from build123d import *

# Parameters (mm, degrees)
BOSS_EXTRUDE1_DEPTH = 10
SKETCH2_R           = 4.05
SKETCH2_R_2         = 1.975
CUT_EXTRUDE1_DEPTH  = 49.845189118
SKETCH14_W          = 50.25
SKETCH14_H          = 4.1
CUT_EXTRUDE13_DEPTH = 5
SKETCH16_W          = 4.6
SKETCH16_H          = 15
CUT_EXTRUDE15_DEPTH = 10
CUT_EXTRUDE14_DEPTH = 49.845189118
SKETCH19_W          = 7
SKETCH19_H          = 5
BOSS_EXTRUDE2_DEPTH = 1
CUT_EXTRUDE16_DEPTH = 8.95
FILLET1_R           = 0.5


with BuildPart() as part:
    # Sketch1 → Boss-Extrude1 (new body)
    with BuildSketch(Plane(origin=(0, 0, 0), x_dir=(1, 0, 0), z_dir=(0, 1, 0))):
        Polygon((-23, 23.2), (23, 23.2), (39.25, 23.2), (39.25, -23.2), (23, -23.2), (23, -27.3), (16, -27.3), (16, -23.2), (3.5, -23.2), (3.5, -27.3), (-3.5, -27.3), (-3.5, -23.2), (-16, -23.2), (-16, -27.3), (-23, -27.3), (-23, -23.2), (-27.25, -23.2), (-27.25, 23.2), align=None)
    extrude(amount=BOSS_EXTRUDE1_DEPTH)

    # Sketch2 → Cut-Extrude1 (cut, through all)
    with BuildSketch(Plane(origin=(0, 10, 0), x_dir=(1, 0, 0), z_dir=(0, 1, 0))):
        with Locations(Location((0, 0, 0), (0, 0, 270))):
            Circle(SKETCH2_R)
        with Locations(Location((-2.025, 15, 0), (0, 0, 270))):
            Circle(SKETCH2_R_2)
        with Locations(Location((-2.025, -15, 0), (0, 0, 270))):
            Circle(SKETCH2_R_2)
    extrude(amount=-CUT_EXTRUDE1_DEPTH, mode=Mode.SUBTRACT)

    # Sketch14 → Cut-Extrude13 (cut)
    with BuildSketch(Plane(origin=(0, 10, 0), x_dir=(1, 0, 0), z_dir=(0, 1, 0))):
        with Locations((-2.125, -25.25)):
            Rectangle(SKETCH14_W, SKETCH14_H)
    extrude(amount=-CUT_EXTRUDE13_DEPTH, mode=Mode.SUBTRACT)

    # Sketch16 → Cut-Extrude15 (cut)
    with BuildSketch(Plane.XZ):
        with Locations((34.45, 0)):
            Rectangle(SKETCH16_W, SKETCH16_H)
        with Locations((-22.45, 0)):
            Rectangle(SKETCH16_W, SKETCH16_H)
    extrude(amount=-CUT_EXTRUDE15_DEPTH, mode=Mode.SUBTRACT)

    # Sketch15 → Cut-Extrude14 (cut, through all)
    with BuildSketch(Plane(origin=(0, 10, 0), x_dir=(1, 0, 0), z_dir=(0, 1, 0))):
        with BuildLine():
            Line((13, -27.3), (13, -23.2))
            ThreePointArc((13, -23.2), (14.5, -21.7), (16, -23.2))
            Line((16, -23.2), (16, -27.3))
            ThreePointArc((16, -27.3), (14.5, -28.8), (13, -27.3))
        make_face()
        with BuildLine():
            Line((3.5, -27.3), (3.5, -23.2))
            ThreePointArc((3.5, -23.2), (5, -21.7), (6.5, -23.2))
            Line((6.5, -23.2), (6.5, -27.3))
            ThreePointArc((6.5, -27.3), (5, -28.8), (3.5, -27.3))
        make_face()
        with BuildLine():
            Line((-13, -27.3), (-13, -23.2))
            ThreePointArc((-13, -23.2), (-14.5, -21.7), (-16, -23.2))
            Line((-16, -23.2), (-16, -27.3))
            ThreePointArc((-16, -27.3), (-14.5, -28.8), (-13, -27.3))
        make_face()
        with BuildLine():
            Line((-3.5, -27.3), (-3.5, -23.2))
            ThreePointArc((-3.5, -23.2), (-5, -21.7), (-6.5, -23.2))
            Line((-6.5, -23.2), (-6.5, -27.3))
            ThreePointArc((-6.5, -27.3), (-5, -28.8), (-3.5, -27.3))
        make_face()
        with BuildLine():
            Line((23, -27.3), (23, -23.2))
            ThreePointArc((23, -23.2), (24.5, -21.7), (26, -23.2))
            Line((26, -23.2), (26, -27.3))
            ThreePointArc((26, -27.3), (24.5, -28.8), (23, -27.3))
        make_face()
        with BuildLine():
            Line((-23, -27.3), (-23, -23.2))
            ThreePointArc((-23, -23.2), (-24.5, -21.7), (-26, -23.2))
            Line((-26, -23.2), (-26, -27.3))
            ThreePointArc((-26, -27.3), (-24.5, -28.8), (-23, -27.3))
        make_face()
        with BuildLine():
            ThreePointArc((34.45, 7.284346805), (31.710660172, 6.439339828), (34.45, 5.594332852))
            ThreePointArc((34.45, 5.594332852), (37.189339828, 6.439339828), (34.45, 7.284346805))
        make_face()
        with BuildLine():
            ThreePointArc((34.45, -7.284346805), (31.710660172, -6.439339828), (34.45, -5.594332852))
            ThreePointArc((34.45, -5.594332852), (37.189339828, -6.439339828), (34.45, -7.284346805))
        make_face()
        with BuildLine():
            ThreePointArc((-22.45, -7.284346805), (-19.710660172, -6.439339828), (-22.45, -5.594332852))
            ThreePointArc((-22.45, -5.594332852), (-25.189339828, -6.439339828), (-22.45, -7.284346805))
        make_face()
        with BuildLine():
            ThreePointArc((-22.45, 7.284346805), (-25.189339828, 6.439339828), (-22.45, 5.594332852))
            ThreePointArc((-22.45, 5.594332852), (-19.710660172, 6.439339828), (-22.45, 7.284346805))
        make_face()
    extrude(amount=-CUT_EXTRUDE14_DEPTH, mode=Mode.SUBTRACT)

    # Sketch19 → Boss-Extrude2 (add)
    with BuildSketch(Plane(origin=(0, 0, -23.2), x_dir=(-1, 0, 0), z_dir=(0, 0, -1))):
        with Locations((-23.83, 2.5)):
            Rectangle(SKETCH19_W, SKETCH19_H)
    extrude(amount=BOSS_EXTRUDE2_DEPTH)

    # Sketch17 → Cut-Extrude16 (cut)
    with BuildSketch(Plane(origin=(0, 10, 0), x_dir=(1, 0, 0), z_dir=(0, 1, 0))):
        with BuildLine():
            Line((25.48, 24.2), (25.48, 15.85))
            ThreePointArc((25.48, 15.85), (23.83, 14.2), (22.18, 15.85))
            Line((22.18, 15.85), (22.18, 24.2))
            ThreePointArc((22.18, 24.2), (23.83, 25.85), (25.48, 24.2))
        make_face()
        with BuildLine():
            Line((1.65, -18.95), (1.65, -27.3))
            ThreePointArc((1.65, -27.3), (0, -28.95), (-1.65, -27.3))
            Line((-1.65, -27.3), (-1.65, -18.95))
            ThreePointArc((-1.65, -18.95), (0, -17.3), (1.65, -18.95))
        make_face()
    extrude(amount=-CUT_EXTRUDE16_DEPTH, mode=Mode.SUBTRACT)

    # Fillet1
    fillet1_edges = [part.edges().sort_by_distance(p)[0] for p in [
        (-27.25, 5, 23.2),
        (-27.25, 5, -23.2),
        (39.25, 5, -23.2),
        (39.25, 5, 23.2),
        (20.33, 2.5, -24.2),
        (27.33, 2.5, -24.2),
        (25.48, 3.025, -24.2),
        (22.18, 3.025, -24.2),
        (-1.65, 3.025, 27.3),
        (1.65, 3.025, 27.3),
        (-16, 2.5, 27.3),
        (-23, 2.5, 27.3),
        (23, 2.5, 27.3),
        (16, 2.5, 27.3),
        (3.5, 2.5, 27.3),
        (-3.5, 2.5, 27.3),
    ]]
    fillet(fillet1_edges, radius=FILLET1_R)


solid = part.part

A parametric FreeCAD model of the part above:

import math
import FreeCAD as App
import Part
import Sketcher
from FreeCAD import Vector


def edges_at(feature, points):
    """Names of the edges that pass closest to the given points."""
    edges = feature.Shape.Edges
    near = lambda p: min(range(len(edges)), key=lambda i: edges[i].distToShape(Part.Vertex(*p))[0])
    return sorted({f"Edge{near(p) + 1}" for p in points})


def add_polygon(sketch, points):
    """Adds a closed chain of lines whose ends are joined by coincident constraints."""
    first, n = sketch.GeometryCount, len(points)
    for a, b in zip(points, points[1:] + points[:1]):
        sketch.addGeometry(Part.LineSegment(App.Vector(*a, 0), App.Vector(*b, 0)), False)
    for i in range(n):
        sketch.addConstraint(Sketcher.Constraint("Coincident", first + i, 2, first + (i + 1) % n, 1))

doc = App.newDocument("Part")
body = doc.addObject("PartDesign::Body", "Body")

sketch1 = body.newObject("Sketcher::SketchObject", "Sketch")
sketch1.AttachmentSupport = (doc.getObject("XZ_Plane"), [""])
sketch1.MapMode = "FlatFace"
add_polygon(sketch1, [(39.2, -23.2), (-27.2, -23.2), (-27.2, 23.2), (-23, 23.2), (-23, 27.3), (-16, 27.3), (-16, 23.2), (-3.5, 23.2), (-3.5, 27.3), (3.5, 27.3), (3.5, 23.2), (16, 23.2), (16, 27.3), (23, 27.3), (23, 23.2), (39.2, 23.2)])
sketch1.addConstraint([
    Sketcher.Constraint("Horizontal", 0),
    Sketcher.Constraint("Vertical", 1),
    Sketcher.Constraint("Horizontal", 2),
    Sketcher.Constraint("Vertical", 3),
    Sketcher.Constraint("Horizontal", 4),
    Sketcher.Constraint("Vertical", 5),
    Sketcher.Constraint("Horizontal", 6),
    Sketcher.Constraint("Vertical", 7),
    Sketcher.Constraint("Horizontal", 8),
    Sketcher.Constraint("Vertical", 9),
    Sketcher.Constraint("Horizontal", 10),
    Sketcher.Constraint("Vertical", 11),
    Sketcher.Constraint("Horizontal", 12),
    Sketcher.Constraint("Vertical", 13),
    Sketcher.Constraint("Horizontal", 14),
    Sketcher.Constraint("Vertical", 15),
    Sketcher.Constraint("Symmetric", 6, 2, 9, 2, -2),
    Sketcher.Constraint("Symmetric", 4, 2, 11, 2, -2),
    Sketcher.Constraint("Symmetric", 2, 2, 13, 2, -2),
    Sketcher.Constraint("Horizontal", 2, 2, 5, 2),
    Sketcher.Constraint("Horizontal", 4, 2, 7, 2),
    Sketcher.Constraint("Equal", 4, 8),
    Sketcher.Constraint("DistanceX", 4, 1, 4, 2, 7.0),
    Sketcher.Constraint("DistanceX", 0, 2, 0, 1, 66.5),
    Sketcher.Constraint("DistanceX", 6, 1, 6, 2, 12.5),
    Sketcher.Constraint("DistanceY", 1, 1, 1, 2, 46.4),
    Sketcher.Constraint("DistanceY", 3, 1, 3, 2, 4.1),
    Sketcher.Constraint("DistanceX", 2, 1, 2, 2, 4.25),
    Sketcher.Constraint("DistanceY", 0, 2, -1, 1, 23.2),
])
pad1 = body.newObject("PartDesign::Pad", "Pad")
pad1.Profile = sketch1
pad1.Length = 10
pad1.Reversed = True

sketch2 = body.newObject("Sketcher::SketchObject", "Sketch001")
sketch2.AttachmentSupport = (doc.getObject("XZ_Plane"), [""])
sketch2.MapMode = "FlatFace"
sketch2.AttachmentOffset = App.Placement(Vector(0, 0, -10), App.Rotation())
sketch2.addGeometry([
    Part.Circle(Vector(0, 0, 0), Vector(0, 0, 1), 4),
    Part.Circle(Vector(-2, -15, 0), Vector(0, 0, 1), 2),
    Part.Circle(Vector(-2, 15, 0), Vector(0, 0, 1), 2),
], False)
sketch2.addConstraint([
    Sketcher.Constraint("Coincident", 0, 3, -1, 1),
    Sketcher.Constraint("Equal", 1, 2),
    Sketcher.Constraint("Symmetric", 1, 3, 2, 3, -1),
    Sketcher.Constraint("Diameter", 0, 8.1),
    Sketcher.Constraint("Diameter", 1, 3.95),
    Sketcher.Constraint("DistanceY", 1, 3, -1, 1, 15.0),
    Sketcher.Constraint("DistanceX", 1, 3, -1, 1, 2.025),
])
pocket1 = body.newObject("PartDesign::Pocket", "Pocket")
pocket1.Profile = sketch2
pocket1.Type = "ThroughAll"
pocket1.Reversed = True

sketch3 = body.newObject("Sketcher::SketchObject", "Sketch002")
sketch3.AttachmentSupport = (doc.getObject("XZ_Plane"), [""])
sketch3.MapMode = "FlatFace"
sketch3.AttachmentOffset = App.Placement(Vector(0, 0, -10), App.Rotation())
add_polygon(sketch3, [(-27.2, 23.2), (-27.2, 27.3), (23, 27.3), (23, 23.2)])
sketch3.addConstraint([
    Sketcher.Constraint("Vertical", 0),
    Sketcher.Constraint("Horizontal", 1),
    Sketcher.Constraint("Vertical", 2),
    Sketcher.Constraint("Horizontal", 3),
    Sketcher.Constraint("DistanceY", 0, 1, 0, 2, 4.1),
    Sketcher.Constraint("DistanceX", -1, 1, 1, 2, 23.0),
    Sketcher.Constraint("DistanceX", 1, 1, 1, 2, 50.25),
    Sketcher.Constraint("DistanceY", -1, 1, 0, 2, 27.3),
])
pocket2 = body.newObject("PartDesign::Pocket", "Pocket001")
pocket2.Profile = sketch3
pocket2.Length = 5
pocket2.Reversed = True

sketch4 = body.newObject("Sketcher::SketchObject", "Sketch003")
sketch4.AttachmentSupport = (doc.getObject("XZ_Plane"), [""])
sketch4.MapMode = "FlatFace"
add_polygon(sketch4, [(32.1, 7.5), (32.1, -7.5), (36.8, -7.5), (36.8, 7.5)])
add_polygon(sketch4, [(-24.8, 7.5), (-24.8, -7.5), (-20.1, -7.5), (-20.1, 7.5)])
sketch4.addConstraint([
    Sketcher.Constraint("Vertical", 0),
    Sketcher.Constraint("Horizontal", 1),
    Sketcher.Constraint("Vertical", 2),
    Sketcher.Constraint("Horizontal", 3),
    Sketcher.Constraint("Vertical", 4),
    Sketcher.Constraint("Horizontal", 5),
    Sketcher.Constraint("Vertical", 6),
    Sketcher.Constraint("Horizontal", 7),
    Sketcher.Constraint("Horizontal", 1, 2, 4, 2),
    Sketcher.Constraint("Horizontal", 3, 2, 6, 2),
    Sketcher.Constraint("Equal", 3, 5),
    Sketcher.Constraint("DistanceY", 0, 2, 0, 1, 15.0),
    Sketcher.Constraint("DistanceX", 1, 1, 1, 2, 4.6),
    Sketcher.Constraint("DistanceY", 0, 2, -1, 1, 7.5),
    Sketcher.Constraint("DistanceX", 4, 2, 0, 2, 56.9),
    Sketcher.Constraint("DistanceX", -1, 1, 0, 2, 32.15),
])
pocket3 = body.newObject("PartDesign::Pocket", "Pocket002")
pocket3.Profile = sketch4
pocket3.Length = 10

sketch5 = body.newObject("Sketcher::SketchObject", "Sketch004")
sketch5.AttachmentSupport = (doc.getObject("XZ_Plane"), [""])
sketch5.MapMode = "FlatFace"
sketch5.AttachmentOffset = App.Placement(Vector(0, 0, -10), App.Rotation())
sketch5.addGeometry([
    Part.LineSegment(Vector(13, 23.2, 0), Vector(13, 27.3, 0)),
    Part.ArcOfCircle(Part.Circle(Vector(14.5, 27.3, 0), Vector(0, 0, 1), 1.5), math.radians(0), math.radians(180)),
    Part.LineSegment(Vector(16, 27.3, 0), Vector(16, 23.2, 0)),
    Part.ArcOfCircle(Part.Circle(Vector(14.5, 23.2, 0), Vector(0, 0, 1), 1.5), math.radians(180), math.radians(360)),
    Part.LineSegment(Vector(3.5, 23.2, 0), Vector(3.5, 27.3, 0)),
    Part.ArcOfCircle(Part.Circle(Vector(5, 27.3, 0), Vector(0, 0, 1), 1.5), math.radians(0), math.radians(180)),
    Part.LineSegment(Vector(6.5, 27.3, 0), Vector(6.5, 23.2, 0)),
    Part.ArcOfCircle(Part.Circle(Vector(5, 23.2, 0), Vector(0, 0, 1), 1.5), math.radians(180), math.radians(360)),
    Part.LineSegment(Vector(-13, 27.3, 0), Vector(-13, 23.2, 0)),
    Part.ArcOfCircle(Part.Circle(Vector(-14.5, 23.2, 0), Vector(0, 0, 1), 1.5), math.radians(180), math.radians(360)),
    Part.LineSegment(Vector(-16, 23.2, 0), Vector(-16, 27.3, 0)),
    Part.ArcOfCircle(Part.Circle(Vector(-14.5, 27.3, 0), Vector(0, 0, 1), 1.5), math.radians(0), math.radians(180)),
    Part.LineSegment(Vector(-3.5, 27.3, 0), Vector(-3.5, 23.2, 0)),
    Part.ArcOfCircle(Part.Circle(Vector(-5, 23.2, 0), Vector(0, 0, 1), 1.5), math.radians(180), math.radians(360)),
    Part.LineSegment(Vector(-6.5, 23.2, 0), Vector(-6.5, 27.3, 0)),
    Part.ArcOfCircle(Part.Circle(Vector(-5, 27.3, 0), Vector(0, 0, 1), 1.5), math.radians(0), math.radians(180)),
    Part.LineSegment(Vector(23, 23.2, 0), Vector(23, 27.3, 0)),
    Part.ArcOfCircle(Part.Circle(Vector(24.5, 27.3, 0), Vector(0, 0, 1), 1.5), math.radians(0), math.radians(180)),
    Part.LineSegment(Vector(26, 27.3, 0), Vector(26, 23.2, 0)),
    Part.ArcOfCircle(Part.Circle(Vector(24.5, 23.2, 0), Vector(0, 0, 1), 1.5), math.radians(180), math.radians(360)),
    Part.LineSegment(Vector(-23, 27.3, 0), Vector(-23, 23.2, 0)),
    Part.ArcOfCircle(Part.Circle(Vector(-24.5, 23.2, 0), Vector(0, 0, 1), 1.5), math.radians(180), math.radians(360)),
    Part.LineSegment(Vector(-26, 23.2, 0), Vector(-26, 27.3, 0)),
    Part.ArcOfCircle(Part.Circle(Vector(-24.5, 27.3, 0), Vector(0, 0, 1), 1.5), math.radians(0), math.radians(180)),
    Part.ArcOfCircle(Part.Circle(Vector(33.2, -6.4, 0), Vector(0, 0, 1), 1.5), math.radians(34), math.radians(326)),
    Part.ArcOfCircle(Part.Circle(Vector(35.7, -6.4, 0), Vector(0, 0, 1), 1.5), math.radians(-146), math.radians(146)),
    Part.ArcOfCircle(Part.Circle(Vector(33.2, 6.4, 0), Vector(0, 0, 1), 1.5), math.radians(34), math.radians(326)),
    Part.ArcOfCircle(Part.Circle(Vector(35.7, 6.4, 0), Vector(0, 0, 1), 1.5), math.radians(-146), math.radians(146)),
    Part.ArcOfCircle(Part.Circle(Vector(-21.2, 6.4, 0), Vector(0, 0, 1), 1.5), math.radians(-146), math.radians(146)),
    Part.ArcOfCircle(Part.Circle(Vector(-23.7, 6.4, 0), Vector(0, 0, 1), 1.5), math.radians(34), math.radians(326)),
    Part.ArcOfCircle(Part.Circle(Vector(-23.7, -6.4, 0), Vector(0, 0, 1), 1.5), math.radians(34), math.radians(326)),
    Part.ArcOfCircle(Part.Circle(Vector(-21.2, -6.4, 0), Vector(0, 0, 1), 1.5), math.radians(-146), math.radians(146)),
], False)
sketch5.addConstraint([
    Sketcher.Constraint("Tangent", 0, 2, 1, 2),
    Sketcher.Constraint("Tangent", 1, 1, 2, 1),
    Sketcher.Constraint("Tangent", 2, 2, 3, 2),
    Sketcher.Constraint("Tangent", 3, 1, 0, 1),
    Sketcher.Constraint("Tangent", 4, 2, 5, 2),
    Sketcher.Constraint("Tangent", 5, 1, 6, 1),
    Sketcher.Constraint("Tangent", 6, 2, 7, 2),
    Sketcher.Constraint("Tangent", 7, 1, 4, 1),
    Sketcher.Constraint("Tangent", 8, 2, 9, 2),
    Sketcher.Constraint("Tangent", 9, 1, 10, 1),
    Sketcher.Constraint("Tangent", 10, 2, 11, 2),
    Sketcher.Constraint("Tangent", 11, 1, 8, 1),
    Sketcher.Constraint("Tangent", 12, 2, 13, 2),
    Sketcher.Constraint("Tangent", 13, 1, 14, 1),
    Sketcher.Constraint("Tangent", 14, 2, 15, 2),
    Sketcher.Constraint("Tangent", 15, 1, 12, 1),
    Sketcher.Constraint("Tangent", 16, 2, 17, 2),
    Sketcher.Constraint("Tangent", 17, 1, 18, 1),
    Sketcher.Constraint("Tangent", 18, 2, 19, 2),
    Sketcher.Constraint("Tangent", 19, 1, 16, 1),
    Sketcher.Constraint("Tangent", 20, 2, 21, 2),
    Sketcher.Constraint("Tangent", 21, 1, 22, 1),
    Sketcher.Constraint("Tangent", 22, 2, 23, 2),
    Sketcher.Constraint("Tangent", 23, 1, 20, 1),
    Sketcher.Constraint("Coincident", 24, 1, 25, 2),
    Sketcher.Constraint("Coincident", 25, 1, 24, 2),
    Sketcher.Constraint("Coincident", 26, 1, 27, 2),
    Sketcher.Constraint("Coincident", 27, 1, 26, 2),
    Sketcher.Constraint("Coincident", 28, 1, 29, 2),
    Sketcher.Constraint("Coincident", 29, 1, 28, 2),
    Sketcher.Constraint("Coincident", 30, 1, 31, 2),
    Sketcher.Constraint("Coincident", 31, 1, 30, 2),
    Sketcher.Constraint("Vertical", 0),
    Sketcher.Constraint("Vertical", 2),
    Sketcher.Constraint("Vertical", 4),
    Sketcher.Constraint("Vertical", 6),
    Sketcher.Constraint("Vertical", 8),
    Sketcher.Constraint("Vertical", 10),
    Sketcher.Constraint("Vertical", 12),
    Sketcher.Constraint("Vertical", 14),
    Sketcher.Constraint("Vertical", 16),
    Sketcher.Constraint("Vertical", 18),
    Sketcher.Constraint("Vertical", 20),
    Sketcher.Constraint("Vertical", 22),
    Sketcher.Constraint("Equal", 3, 5),
    Sketcher.Constraint("Equal", 7, 9),
    Sketcher.Constraint("Equal", 11, 13),
    Sketcher.Constraint("Equal", 15, 17),
    Sketcher.Constraint("Equal", 19, 21),
    Sketcher.Constraint("Equal", 23, 24),
    Sketcher.Constraint("Equal", 24, 25),
    Sketcher.Constraint("Equal", 25, 26),
    Sketcher.Constraint("Equal", 26, 27),
    Sketcher.Constraint("Equal", 27, 28),
    Sketcher.Constraint("Equal", 28, 29),
    Sketcher.Constraint("Equal", 29, 30),
    Sketcher.Constraint("Equal", 30, 31),
    Sketcher.Constraint("Symmetric", 3, 3, 9, 3, -2),
    Sketcher.Constraint("Symmetric", 7, 3, 13, 3, -2),
    Sketcher.Constraint("Symmetric", 19, 3, 21, 3, -2),
    Sketcher.Constraint("Symmetric", 24, 3, 26, 3, -1),
    Sketcher.Constraint("Symmetric", 25, 3, 27, 3, -1),
    Sketcher.Constraint("Symmetric", 29, 3, 30, 3, -1),
    Sketcher.Constraint("Symmetric", 28, 3, 31, 3, -1),
    Sketcher.Constraint("Horizontal", 1, 3, 5, 3),
    Sketcher.Constraint("Horizontal", 3, 3, 7, 3),
    Sketcher.Constraint("Horizontal", 5, 3, 11, 3),
    Sketcher.Constraint("Horizontal", 11, 3, 15, 3),
    Sketcher.Constraint("Horizontal", 15, 3, 17, 3),
    Sketcher.Constraint("Horizontal", 13, 3, 19, 3),
    Sketcher.Constraint("Horizontal", 17, 3, 23, 3),
    Sketcher.Constraint("Horizontal", 24, 3, 25, 3),
    Sketcher.Constraint("Horizontal", 27, 3, 28, 3),
    Sketcher.Constraint("Horizontal", 28, 3, 29, 3),
    Sketcher.Constraint("Horizontal", 27, 1, 28, 1),
    Sketcher.Constraint("Radius", 1, 1.5),
    Sketcher.Constraint("DistanceY", 0, 1, 0, 2, 4.1),
    Sketcher.Constraint("DistanceX", -1, 1, 5, 3, 5.0),
    Sketcher.Constraint("DistanceX", -1, 1, 0, 2, 13.0),
    Sketcher.Constraint("DistanceX", -1, 1, 16, 2, 23.0),
    Sketcher.Constraint("DistanceY", -1, 1, 1, 3, 27.3),
    Sketcher.Constraint("DistanceX", -1, 1, 24, 1, 34.45),
    Sketcher.Constraint("DistanceX", 28, 1, -1, 1, 22.45),
    Sketcher.Constraint("DistanceX", -1, 1, 24, 3, 33.21066),
    Sketcher.Constraint("DistanceY", 24, 3, -1, 1, 6.43934),
])
pocket4 = body.newObject("PartDesign::Pocket", "Pocket003")
pocket4.Profile = sketch5
pocket4.Type = "ThroughAll"
pocket4.Reversed = True

sketch6 = body.newObject("Sketcher::SketchObject", "Sketch005")
sketch6.AttachmentSupport = (doc.getObject("XY_Plane"), [""])
sketch6.MapMode = "FlatFace"
sketch6.AttachmentOffset = App.Placement(Vector(0, 0, -23.2), App.Rotation())
add_polygon(sketch6, [(27, 5), (27, 0), (20, 0), (20, 5)])
sketch6.addConstraint([
    Sketcher.Constraint("Vertical", 0),
    Sketcher.Constraint("Horizontal", 1),
    Sketcher.Constraint("Vertical", 2),
    Sketcher.Constraint("Horizontal", 3),
    Sketcher.Constraint("PointOnObject", 0, 2, -1),
    Sketcher.Constraint("DistanceX", 1, 2, 1, 1, 7.0),
    Sketcher.Constraint("DistanceY", 0, 2, 0, 1, 5.0),
    Sketcher.Constraint("DistanceX", -1, 1, 0, 2, 27.33),
])
pad2 = body.newObject("PartDesign::Pad", "Pad001")
pad2.Profile = sketch6
pad2.Length = 1
pad2.Reversed = True

sketch7 = body.newObject("Sketcher::SketchObject", "Sketch006")
sketch7.AttachmentSupport = (doc.getObject("XZ_Plane"), [""])
sketch7.MapMode = "FlatFace"
sketch7.AttachmentOffset = App.Placement(Vector(0, 0, -10), App.Rotation())
sketch7.addGeometry([
    Part.LineSegment(Vector(25.5, -15.8, 0), Vector(25.5, -24.2, 0)),
    Part.ArcOfCircle(Part.Circle(Vector(23.8, -24.2, 0), Vector(0, 0, 1), 1.6), math.radians(180), math.radians(360)),
    Part.LineSegment(Vector(22.2, -24.2, 0), Vector(22.2, -15.8, 0)),
    Part.ArcOfCircle(Part.Circle(Vector(23.8, -15.8, 0), Vector(0, 0, 1), 1.6), math.radians(0), math.radians(180)),
    Part.LineSegment(Vector(1.6, 27.3, 0), Vector(1.6, 18.9, 0)),
    Part.ArcOfCircle(Part.Circle(Vector(0, 18.9, 0), Vector(0, 0, 1), 1.6), math.radians(180), math.radians(360)),
    Part.LineSegment(Vector(-1.6, 18.9, 0), Vector(-1.6, 27.3, 0)),
    Part.ArcOfCircle(Part.Circle(Vector(0, 27.3, 0), Vector(0, 0, 1), 1.6), math.radians(0), math.radians(180)),
], False)
sketch7.addConstraint([
    Sketcher.Constraint("Tangent", 0, 2, 1, 2),
    Sketcher.Constraint("Tangent", 1, 1, 2, 1),
    Sketcher.Constraint("Tangent", 2, 2, 3, 2),
    Sketcher.Constraint("Tangent", 3, 1, 0, 1),
    Sketcher.Constraint("Tangent", 4, 2, 5, 2),
    Sketcher.Constraint("Tangent", 5, 1, 6, 1),
    Sketcher.Constraint("Tangent", 6, 2, 7, 2),
    Sketcher.Constraint("Tangent", 7, 1, 4, 1),
    Sketcher.Constraint("Vertical", 0),
    Sketcher.Constraint("Vertical", 2),
    Sketcher.Constraint("Vertical", 4),
    Sketcher.Constraint("Vertical", 6),
    Sketcher.Constraint("Equal", 3, 5),
    Sketcher.Constraint("PointOnObject", 5, 3, -2),
    Sketcher.Constraint("Equal", 2, 4),
    Sketcher.Constraint("Radius", 1, 1.65),
    Sketcher.Constraint("DistanceY", 0, 2, 0, 1, 8.35),
    Sketcher.Constraint("DistanceY", 1, 3, -1, 1, 24.2),
    Sketcher.Constraint("DistanceY", -1, 1, 7, 3, 27.3),
    Sketcher.Constraint("DistanceX", -1, 1, 1, 3, 23.83),
])
pocket5 = body.newObject("PartDesign::Pocket", "Pocket004")
pocket5.Profile = sketch7
pocket5.Length = 8.95
pocket5.Reversed = True
doc.recompute()

fillet = body.newObject("PartDesign::Fillet", "Fillet")
fillet.Base = (pocket5, edges_at(pocket5, [
    (-27.25, 5, 23.2),
    (-27.25, 5, -23.2),
    (39.25, 5, -23.2),
    (39.25, 5, 23.2),
    (20.33, 2.5, -24.2),
    (27.33, 2.5, -24.2),
    (25.48, 3.025, -24.2),
    (22.18, 3.025, -24.2),
    (-1.65, 3.025, 27.3),
    (1.65, 3.025, 27.3),
    (-16, 2.5, 27.3),
    (-23, 2.5, 27.3),
    (23, 2.5, 27.3),
    (16, 2.5, 27.3),
    (3.5, 2.5, 27.3),
    (-3.5, 2.5, 27.3),
]))
fillet.Radius = 0.5

doc.recompute()
